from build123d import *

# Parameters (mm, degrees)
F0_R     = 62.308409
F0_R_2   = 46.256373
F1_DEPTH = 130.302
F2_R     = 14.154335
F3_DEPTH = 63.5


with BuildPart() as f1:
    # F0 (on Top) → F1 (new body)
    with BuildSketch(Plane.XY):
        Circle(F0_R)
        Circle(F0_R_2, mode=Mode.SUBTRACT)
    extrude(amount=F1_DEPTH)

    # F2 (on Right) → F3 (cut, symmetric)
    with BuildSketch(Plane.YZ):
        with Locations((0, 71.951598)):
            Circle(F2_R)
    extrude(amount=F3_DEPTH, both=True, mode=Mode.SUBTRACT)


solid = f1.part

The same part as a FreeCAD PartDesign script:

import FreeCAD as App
import Part
import Sketcher
Q = App.Units.Quantity

doc = App.newDocument("Part")
params = doc.addObject("Spreadsheet::Sheet", "Params")
for row, (alias, value) in enumerate([
    ("pad1_length", "5.13 in"),
    ("pocket1_length", "5 in"),
], start=1):
    params.set(f"A{row}", alias)
    params.set(f"B{row}", "=" + value)
    params.setAlias(f"B{row}", alias)

body = doc.addObject("PartDesign::Body", "Body")

sketch1 = doc.addObject("Sketcher::SketchObject", "Sketch")
body.addObject(sketch1)
sketch1.AttachmentSupport = (doc.XY_Plane, [""])
sketch1.MapMode = "FlatFace"
sketch1.addGeometry([
    Part.Circle(App.Vector(0, 0, 0), App.Vector(0, 0, 1), 62),
    Part.Circle(App.Vector(0, 0, 0), App.Vector(0, 0, 1), 46),
], False)
sketch1.addConstraint([
    Sketcher.Constraint("Coincident", 0, 3, -1, 1),
    Sketcher.Constraint("Coincident", 1, 3, -1, 1),
    Sketcher.Constraint("Diameter", 0, Q("124.616818 mm")),
    Sketcher.Constraint("Diameter", 1, Q("92.512746 mm")),
])
pad1 = doc.addObject("PartDesign::Pad", "Pad")
body.addObject(pad1)
pad1.Profile = sketch1
pad1.setExpression("Length", "Params.pad1_length")

sketch2 = doc.addObject("Sketcher::SketchObject", "Sketch001")
body.addObject(sketch2)
sketch2.AttachmentSupport = (doc.YZ_Plane, [""])
sketch2.MapMode = "FlatFace"
sketch2.addGeometry(Part.Circle(App.Vector(0, 72, 0), App.Vector(0, 0, 1), 14), False)
sketch2.addConstraint([
    Sketcher.Constraint("PointOnObject", 0, 3, -2),
    Sketcher.Constraint("Diameter", 0, Q("28.30867 mm")),
    Sketcher.Constraint("DistanceY", -1, 1, 0, 3, Q("71.951598 mm")),
])
pocket1 = doc.addObject("PartDesign::Pocket", "Pocket")
body.addObject(pocket1)
pocket1.Profile = sketch2
pocket1.setExpression("Length", "Params.pocket1_length")
pocket1.Midplane = True

doc.recompute()
